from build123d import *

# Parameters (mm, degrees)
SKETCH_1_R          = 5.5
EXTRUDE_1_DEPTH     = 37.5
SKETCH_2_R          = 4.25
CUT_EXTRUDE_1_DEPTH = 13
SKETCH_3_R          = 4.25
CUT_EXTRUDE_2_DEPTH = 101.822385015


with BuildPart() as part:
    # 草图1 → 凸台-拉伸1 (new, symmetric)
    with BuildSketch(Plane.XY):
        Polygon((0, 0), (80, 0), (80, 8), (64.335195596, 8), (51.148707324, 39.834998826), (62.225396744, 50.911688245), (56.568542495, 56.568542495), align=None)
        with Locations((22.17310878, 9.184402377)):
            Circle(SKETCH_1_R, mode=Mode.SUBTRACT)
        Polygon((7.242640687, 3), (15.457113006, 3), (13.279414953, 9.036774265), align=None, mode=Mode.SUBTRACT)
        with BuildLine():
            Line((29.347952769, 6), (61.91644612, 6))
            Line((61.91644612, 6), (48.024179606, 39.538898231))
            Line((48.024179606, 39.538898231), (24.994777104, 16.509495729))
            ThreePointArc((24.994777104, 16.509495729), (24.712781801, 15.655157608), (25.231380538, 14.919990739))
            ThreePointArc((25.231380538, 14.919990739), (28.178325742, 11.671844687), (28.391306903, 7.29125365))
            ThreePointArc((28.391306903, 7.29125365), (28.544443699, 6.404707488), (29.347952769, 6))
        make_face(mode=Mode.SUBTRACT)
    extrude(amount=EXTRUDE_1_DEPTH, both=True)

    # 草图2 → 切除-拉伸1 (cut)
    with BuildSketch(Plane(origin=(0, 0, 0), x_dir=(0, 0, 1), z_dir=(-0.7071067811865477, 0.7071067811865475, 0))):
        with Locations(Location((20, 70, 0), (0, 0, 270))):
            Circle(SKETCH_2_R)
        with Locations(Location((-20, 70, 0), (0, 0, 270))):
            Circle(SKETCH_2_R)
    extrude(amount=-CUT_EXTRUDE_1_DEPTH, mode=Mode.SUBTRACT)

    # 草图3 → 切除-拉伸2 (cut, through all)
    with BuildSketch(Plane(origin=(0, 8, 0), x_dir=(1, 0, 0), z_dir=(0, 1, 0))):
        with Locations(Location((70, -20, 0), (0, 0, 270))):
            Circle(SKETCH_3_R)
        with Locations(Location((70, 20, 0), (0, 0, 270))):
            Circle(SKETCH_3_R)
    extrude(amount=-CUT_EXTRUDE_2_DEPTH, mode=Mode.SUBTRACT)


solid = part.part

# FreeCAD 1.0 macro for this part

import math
import FreeCAD as App
import Part
import Sketcher

V = App.Vector
Q = App.Units.Quantity


def add_polygon(sketch, points):
    """Adds a closed chain of lines whose ends are joined by coincident constraints."""
    first, n = sketch.GeometryCount, len(points)
    for a, b in zip(points, points[1:] + points[:1]):
        sketch.addGeometry(Part.LineSegment(App.Vector(*a, 0), App.Vector(*b, 0)), False)
    for i in range(n):
        sketch.addConstraint(Sketcher.Constraint("Coincident", first + i, 2, first + (i + 1) % n, 1))

doc = App.newDocument("Part")
body = doc.addObject("PartDesign::Body", "Body")

# Sketch on XY plane
sketch1 = body.newObject("Sketcher::SketchObject", "Sketch")
sketch1.AttachmentSupport = (doc.getObject("XY_Plane"), [""])
sketch1.MapMode = "FlatFace"
add_polygon(sketch1, [(0, 0), (80, 0), (80, 8), (64.3, 8), (51.1, 39.8), (62.2, 50.9), (56.6, 56.6)])  # lines 0-6
add_polygon(sketch1, [(15.5, 3), (7.2, 3), (13.3, 9)])  # lines 7-9
sketch1.addGeometry(Part.Circle(V(22.2, 9.2, 0), V(0, 0, 1), 5.5), False)  # 10
sketch1.addGeometry(Part.LineSegment(V(61.9, 6, 0), V(29.3, 6, 0)), False)  # 11
sketch1.addGeometry(Part.ArcOfCircle(Part.Circle(V(29.3, 7, 0), V(0, 0, 1), 1), math.radians(163), math.radians(270)), False)  # 12
sketch1.addGeometry(Part.ArcOfCircle(Part.Circle(V(22.2, 9.2, 0), V(0, 0, 1), 6.5), math.radians(-17), math.radians(62)), False)  # 13
sketch1.addGeometry(Part.ArcOfCircle(Part.Circle(V(25.7, 15.8, 0), V(0, 0, 1), 1), math.radians(135), math.radians(242)), False)  # 14
sketch1.addGeometry(Part.LineSegment(V(25, 16.5, 0), V(48, 39.5, 0)), False)  # 15
sketch1.addGeometry(Part.LineSegment(V(48, 39.5, 0), V(61.9, 6, 0)), False)  # 16
sketch1.addConstraint([
    Sketcher.Constraint("Tangent", 11, 2, 12, 2),
    Sketcher.Constraint("Tangent", 12, 1, 13, 1),
    Sketcher.Constraint("Tangent", 13, 2, 14, 2),
    Sketcher.Constraint("Tangent", 14, 1, 15, 1),
    Sketcher.Constraint("Coincident", 15, 2, 16, 1),
    Sketcher.Constraint("Coincident", 16, 2, 11, 1),
    Sketcher.Constraint("Horizontal", 0),
    Sketcher.Constraint("Vertical", 1),
    Sketcher.Constraint("Horizontal", 2),
    Sketcher.Constraint("Horizontal", 7),
    Sketcher.Constraint("Horizontal", 11),
    Sketcher.Constraint("Coincident", 6, 2, -1, 1),
    Sketcher.Constraint("Coincident", 13, 3, 10, 3),
    Sketcher.Constraint("Equal", 12, 14),
    Sketcher.Constraint("Perpendicular", 4, 5),
    Sketcher.Constraint("Perpendicular", 5, 6),
    Sketcher.Constraint("Parallel", 6, 8),
    Sketcher.Constraint("Parallel", 8, 15),
    Sketcher.Constraint("Parallel", 3, 16),
    Sketcher.Constraint("Diameter", 10, Q("11 mm")),
    Sketcher.Constraint("Radius", 12, Q("1 mm")),
    Sketcher.Constraint("Radius", 13, Q("6.5 mm")),
    Sketcher.Constraint("DistanceX", 0, 1, 0, 2, Q("80 mm")),
    Sketcher.Constraint("DistanceY", 1, 1, 1, 2, Q("8 mm")),
    Sketcher.Constraint("Angle", 4, Q("45 deg")),
    Sketcher.Constraint("Distance", 5, Q("8 mm")),
    Sketcher.Constraint("Distance", 6, Q("80 mm")),
    Sketcher.Constraint("DistanceY", -1, 1, 12, 3, Q("7 mm")),
    Sketcher.Constraint("DistanceY", -1, 1, 7, 2, Q("3 mm")),
    Sketcher.Constraint("Angle", 3, Q("112.5 deg")),
    Sketcher.Constraint("DistanceY", -1, 1, 3, 2, Q("39.834999 mm")),
    Sketcher.Constraint("DistanceY", -1, 1, 15, 2, Q("39.538898 mm")),
    Sketcher.Constraint("DistanceX", 13, 3, 3, 2, Q("28.975599 mm")),
    Sketcher.Constraint("DistanceY", 14, 3, 4, 2, Q("35.109299 mm")),
    Sketcher.Constraint("DistanceX", 8, 2, 9, 2, Q("2.177698 mm")),
    Sketcher.Constraint("DistanceX", 13, 3, 12, 1, Q("6.218198 mm")),
    Sketcher.Constraint("Distance", 8, Q("8.537288 mm")),
    Sketcher.Constraint("DistanceX", -1, 1, 7, 2, Q("7.242641 mm")),
])
pad1 = body.newObject("PartDesign::Pad", "Pad")
pad1.Profile = sketch1
pad1.Length = 75
pad1.Midplane = True

# Sketch on an angled plane
sketch2 = body.newObject("Sketcher::SketchObject", "Sketch001")
sketch2.Placement = App.Placement(V(0, 0, 0), App.Rotation(V(0, 0, 1), V(0.707106781, 0.707106781, 0), V(-0.707106781, 0.707106781, 0), "ZXY"))
sketch2.addGeometry([
    Part.Circle(V(20, 70, 0), V(0, 0, 1), 4.2),
    Part.Circle(V(-20, 70, 0), V(0, 0, 1), 4.2),
], False)
sketch2.addConstraint([
    Sketcher.Constraint("Equal", 0, 1),
    Sketcher.Constraint("Symmetric", 0, 3, 1, 3, -2),
    Sketcher.Constraint("Diameter", 0, Q("8.5 mm")),
    Sketcher.Constraint("DistanceX", -1, 1, 0, 3, Q("20 mm")),
    Sketcher.Constraint("DistanceY", -1, 1, 0, 3, Q("70 mm")),
])
pocket1 = body.newObject("PartDesign::Pocket", "Pocket")
pocket1.Profile = sketch2
pocket1.Length = 13

# Sketch on XZ plane
sketch3 = body.newObject("Sketcher::SketchObject", "Sketch002")
sketch3.AttachmentSupport = (doc.getObject("XZ_Plane"), [""])
sketch3.MapMode = "FlatFace"
sketch3.AttachmentOffset = App.Placement(V(0, 0, -8), App.Rotation())
sketch3.addGeometry([
    Part.Circle(V(70, 20, 0), V(0, 0, 1), 4.2),
    Part.Circle(V(70, -20, 0), V(0, 0, 1), 4.2),
], False)
sketch3.addConstraint([
    Sketcher.Constraint("Equal", 0, 1),
    Sketcher.Constraint("Symmetric", 0, 3, 1, 3, -1),
    Sketcher.Constraint("Diameter", 0, Q("8.5 mm")),
    Sketcher.Constraint("DistanceX", -1, 1, 0, 3, Q("70 mm")),
    Sketcher.Constraint("DistanceY", -1, 1, 0, 3, Q("20 mm")),
])
pocket2 = body.newObject("PartDesign::Pocket", "Pocket001")
pocket2.Profile = sketch3
pocket2.Type = "ThroughAll"
pocket2.Reversed = True

doc.recompute()
